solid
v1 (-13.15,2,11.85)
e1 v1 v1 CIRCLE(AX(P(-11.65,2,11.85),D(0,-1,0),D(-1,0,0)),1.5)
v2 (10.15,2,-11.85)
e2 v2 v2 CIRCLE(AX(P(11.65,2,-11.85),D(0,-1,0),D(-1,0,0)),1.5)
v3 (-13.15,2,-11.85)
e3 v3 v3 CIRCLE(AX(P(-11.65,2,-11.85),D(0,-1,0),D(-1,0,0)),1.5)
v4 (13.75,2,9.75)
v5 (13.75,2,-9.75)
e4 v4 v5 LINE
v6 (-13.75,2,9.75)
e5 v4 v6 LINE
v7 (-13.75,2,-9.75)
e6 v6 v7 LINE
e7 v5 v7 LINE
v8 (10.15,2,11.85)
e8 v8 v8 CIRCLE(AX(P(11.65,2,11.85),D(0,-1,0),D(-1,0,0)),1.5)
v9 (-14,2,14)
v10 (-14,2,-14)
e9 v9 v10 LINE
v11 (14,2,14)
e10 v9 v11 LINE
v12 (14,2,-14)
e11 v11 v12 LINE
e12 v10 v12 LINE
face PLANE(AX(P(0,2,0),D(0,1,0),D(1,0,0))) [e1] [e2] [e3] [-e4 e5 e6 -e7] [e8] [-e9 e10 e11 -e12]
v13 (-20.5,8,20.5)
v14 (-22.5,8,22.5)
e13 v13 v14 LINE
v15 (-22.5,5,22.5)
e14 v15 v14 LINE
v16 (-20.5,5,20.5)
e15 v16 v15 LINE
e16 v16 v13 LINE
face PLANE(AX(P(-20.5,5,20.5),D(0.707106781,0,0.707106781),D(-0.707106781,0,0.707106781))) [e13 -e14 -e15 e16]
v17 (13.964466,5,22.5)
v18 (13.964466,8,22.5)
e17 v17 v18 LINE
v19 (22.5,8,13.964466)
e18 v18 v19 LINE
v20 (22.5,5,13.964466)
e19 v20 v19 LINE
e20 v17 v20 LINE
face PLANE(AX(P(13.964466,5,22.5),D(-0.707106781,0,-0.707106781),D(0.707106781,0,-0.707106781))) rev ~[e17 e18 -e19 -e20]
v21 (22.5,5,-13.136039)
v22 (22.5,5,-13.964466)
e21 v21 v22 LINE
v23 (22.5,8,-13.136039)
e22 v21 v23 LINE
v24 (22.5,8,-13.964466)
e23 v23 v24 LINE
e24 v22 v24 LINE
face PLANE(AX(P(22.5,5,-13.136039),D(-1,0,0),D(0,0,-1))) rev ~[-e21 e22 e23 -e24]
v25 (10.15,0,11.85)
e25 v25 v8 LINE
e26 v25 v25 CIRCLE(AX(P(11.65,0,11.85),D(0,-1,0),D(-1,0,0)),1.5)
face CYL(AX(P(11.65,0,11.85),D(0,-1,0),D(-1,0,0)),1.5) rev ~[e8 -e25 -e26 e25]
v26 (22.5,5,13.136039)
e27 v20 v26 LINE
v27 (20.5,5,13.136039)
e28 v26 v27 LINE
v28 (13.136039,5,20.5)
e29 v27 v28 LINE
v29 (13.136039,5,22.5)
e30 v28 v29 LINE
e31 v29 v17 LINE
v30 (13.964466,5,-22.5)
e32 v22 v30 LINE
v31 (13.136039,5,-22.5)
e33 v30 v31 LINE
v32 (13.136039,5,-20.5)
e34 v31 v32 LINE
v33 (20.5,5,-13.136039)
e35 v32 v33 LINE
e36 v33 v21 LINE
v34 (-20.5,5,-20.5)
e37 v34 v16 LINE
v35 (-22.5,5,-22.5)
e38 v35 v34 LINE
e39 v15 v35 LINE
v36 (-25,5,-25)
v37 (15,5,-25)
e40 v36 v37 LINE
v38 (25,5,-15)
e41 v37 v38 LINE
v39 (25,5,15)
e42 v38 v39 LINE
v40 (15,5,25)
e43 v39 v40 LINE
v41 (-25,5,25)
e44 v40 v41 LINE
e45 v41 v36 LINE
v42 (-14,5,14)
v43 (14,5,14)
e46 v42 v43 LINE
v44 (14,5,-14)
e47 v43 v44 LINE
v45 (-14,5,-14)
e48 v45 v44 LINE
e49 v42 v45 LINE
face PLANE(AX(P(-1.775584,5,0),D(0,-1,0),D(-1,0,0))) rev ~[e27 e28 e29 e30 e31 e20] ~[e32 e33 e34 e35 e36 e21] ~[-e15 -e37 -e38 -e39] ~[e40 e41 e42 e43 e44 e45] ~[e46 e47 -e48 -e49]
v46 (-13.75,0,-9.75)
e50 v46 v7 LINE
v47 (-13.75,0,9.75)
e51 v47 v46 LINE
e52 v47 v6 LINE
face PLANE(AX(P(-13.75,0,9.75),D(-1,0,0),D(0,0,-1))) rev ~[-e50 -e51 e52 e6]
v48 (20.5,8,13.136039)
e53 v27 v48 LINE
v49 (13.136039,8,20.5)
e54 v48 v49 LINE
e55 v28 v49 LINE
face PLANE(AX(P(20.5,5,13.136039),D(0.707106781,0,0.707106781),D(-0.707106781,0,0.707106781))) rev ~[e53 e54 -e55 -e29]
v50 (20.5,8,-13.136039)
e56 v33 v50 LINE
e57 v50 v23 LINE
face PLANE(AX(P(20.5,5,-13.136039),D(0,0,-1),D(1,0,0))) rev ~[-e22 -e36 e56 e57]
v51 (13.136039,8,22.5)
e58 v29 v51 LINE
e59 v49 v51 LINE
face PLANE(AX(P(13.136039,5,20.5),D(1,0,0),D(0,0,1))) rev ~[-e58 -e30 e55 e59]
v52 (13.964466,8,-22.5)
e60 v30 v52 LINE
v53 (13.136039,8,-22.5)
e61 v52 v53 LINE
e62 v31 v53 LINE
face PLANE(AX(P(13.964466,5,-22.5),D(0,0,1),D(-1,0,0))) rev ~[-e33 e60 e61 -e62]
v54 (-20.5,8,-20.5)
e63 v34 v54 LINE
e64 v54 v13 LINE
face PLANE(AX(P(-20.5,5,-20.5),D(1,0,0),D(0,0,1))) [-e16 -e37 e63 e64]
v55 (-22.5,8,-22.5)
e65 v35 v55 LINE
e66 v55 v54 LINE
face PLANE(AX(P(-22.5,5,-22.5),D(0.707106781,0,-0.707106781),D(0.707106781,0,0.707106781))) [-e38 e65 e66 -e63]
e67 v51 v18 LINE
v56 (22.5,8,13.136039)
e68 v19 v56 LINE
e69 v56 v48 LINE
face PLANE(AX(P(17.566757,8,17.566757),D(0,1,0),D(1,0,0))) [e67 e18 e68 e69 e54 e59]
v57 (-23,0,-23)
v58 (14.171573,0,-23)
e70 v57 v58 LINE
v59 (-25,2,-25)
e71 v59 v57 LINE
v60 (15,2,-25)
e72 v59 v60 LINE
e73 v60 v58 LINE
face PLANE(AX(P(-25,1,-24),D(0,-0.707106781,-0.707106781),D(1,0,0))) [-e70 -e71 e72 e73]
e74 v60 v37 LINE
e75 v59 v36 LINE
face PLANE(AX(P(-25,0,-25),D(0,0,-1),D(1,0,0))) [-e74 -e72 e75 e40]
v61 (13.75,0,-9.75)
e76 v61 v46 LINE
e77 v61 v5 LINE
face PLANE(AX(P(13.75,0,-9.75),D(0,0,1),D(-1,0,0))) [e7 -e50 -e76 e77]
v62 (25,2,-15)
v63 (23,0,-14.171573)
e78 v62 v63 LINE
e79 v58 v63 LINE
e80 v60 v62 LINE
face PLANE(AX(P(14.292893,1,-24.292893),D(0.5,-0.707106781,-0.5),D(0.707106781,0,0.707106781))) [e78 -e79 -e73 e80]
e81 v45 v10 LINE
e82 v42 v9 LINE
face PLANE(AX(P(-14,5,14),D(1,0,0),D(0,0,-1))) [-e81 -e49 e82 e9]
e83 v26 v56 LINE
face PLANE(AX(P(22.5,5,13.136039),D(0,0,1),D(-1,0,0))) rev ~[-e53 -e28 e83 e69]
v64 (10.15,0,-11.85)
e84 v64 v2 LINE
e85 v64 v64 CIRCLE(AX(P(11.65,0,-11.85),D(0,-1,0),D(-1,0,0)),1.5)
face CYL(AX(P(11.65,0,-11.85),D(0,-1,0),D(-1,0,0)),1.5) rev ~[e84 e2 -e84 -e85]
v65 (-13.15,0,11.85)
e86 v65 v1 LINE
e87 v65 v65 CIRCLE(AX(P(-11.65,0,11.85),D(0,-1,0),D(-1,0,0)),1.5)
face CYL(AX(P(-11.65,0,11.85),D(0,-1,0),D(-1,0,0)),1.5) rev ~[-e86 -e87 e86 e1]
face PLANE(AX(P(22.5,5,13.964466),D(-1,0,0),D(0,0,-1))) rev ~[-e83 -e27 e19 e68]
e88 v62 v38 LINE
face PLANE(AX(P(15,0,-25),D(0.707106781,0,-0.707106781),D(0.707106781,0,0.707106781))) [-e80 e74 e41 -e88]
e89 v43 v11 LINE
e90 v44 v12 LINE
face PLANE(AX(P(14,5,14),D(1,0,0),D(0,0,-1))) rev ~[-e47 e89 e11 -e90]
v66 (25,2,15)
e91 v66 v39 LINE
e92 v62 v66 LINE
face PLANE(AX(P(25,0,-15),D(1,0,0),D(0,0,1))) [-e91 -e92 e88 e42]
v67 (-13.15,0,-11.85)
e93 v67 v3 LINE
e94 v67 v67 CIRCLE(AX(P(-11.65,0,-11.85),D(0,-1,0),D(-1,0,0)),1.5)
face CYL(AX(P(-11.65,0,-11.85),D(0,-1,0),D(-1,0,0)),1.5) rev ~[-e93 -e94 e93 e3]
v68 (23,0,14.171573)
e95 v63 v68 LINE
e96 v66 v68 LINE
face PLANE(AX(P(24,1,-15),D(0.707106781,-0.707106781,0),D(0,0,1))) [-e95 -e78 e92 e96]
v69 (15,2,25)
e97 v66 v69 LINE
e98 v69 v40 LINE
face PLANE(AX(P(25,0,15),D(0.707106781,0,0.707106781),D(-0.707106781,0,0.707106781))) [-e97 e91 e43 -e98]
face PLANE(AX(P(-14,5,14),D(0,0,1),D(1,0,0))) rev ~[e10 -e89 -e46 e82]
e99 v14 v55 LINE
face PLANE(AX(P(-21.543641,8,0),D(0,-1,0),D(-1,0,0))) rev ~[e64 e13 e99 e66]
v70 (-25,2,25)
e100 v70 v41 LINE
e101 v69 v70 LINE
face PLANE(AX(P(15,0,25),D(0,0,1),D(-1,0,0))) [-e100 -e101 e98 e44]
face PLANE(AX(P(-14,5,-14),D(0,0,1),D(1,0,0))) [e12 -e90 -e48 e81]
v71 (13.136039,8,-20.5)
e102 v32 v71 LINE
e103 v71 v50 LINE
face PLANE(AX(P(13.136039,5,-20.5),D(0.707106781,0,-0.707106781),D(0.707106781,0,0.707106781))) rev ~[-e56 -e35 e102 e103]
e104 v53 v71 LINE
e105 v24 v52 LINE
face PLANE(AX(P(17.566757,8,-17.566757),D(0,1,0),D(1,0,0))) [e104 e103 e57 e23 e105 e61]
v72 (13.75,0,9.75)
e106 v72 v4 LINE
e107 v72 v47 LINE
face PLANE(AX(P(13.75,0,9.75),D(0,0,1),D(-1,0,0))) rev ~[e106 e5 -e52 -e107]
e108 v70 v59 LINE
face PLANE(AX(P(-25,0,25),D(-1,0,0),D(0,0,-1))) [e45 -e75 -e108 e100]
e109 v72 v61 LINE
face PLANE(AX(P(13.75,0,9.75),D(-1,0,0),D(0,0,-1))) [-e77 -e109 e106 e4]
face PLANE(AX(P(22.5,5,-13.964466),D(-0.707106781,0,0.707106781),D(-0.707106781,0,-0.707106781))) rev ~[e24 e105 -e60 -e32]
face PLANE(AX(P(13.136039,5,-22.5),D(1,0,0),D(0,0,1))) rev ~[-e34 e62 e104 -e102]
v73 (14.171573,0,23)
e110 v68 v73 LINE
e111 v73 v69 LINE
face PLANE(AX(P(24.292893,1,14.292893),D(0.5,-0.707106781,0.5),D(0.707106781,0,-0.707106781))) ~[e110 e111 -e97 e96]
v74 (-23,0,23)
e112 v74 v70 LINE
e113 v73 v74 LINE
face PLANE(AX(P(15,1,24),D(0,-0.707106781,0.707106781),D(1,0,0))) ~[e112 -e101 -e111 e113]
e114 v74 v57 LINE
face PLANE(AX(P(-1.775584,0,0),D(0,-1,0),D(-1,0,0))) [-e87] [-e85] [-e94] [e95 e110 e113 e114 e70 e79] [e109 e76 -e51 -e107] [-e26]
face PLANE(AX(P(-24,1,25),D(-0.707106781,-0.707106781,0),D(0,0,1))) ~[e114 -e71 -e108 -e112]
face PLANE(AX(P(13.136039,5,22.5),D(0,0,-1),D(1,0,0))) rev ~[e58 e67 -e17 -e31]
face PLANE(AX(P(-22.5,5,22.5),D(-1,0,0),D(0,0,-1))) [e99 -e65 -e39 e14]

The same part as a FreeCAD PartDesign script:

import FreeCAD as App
import Part
import Sketcher
from FreeCAD import Vector
Q = App.Units.Quantity


def edges_at(feature, points):
    """Names of the edges that pass closest to the given points."""
    edges = feature.Shape.Edges
    near = lambda p: min(range(len(edges)), key=lambda i: edges[i].distToShape(Part.Vertex(*p))[0])
    return sorted({f"Edge{near(p) + 1}" for p in points})


def add_polygon(sketch, points):
    """Adds a closed chain of lines whose ends are joined by coincident constraints."""
    first, n = sketch.GeometryCount, len(points)
    for a, b in zip(points, points[1:] + points[:1]):
        sketch.addGeometry(Part.LineSegment(App.Vector(*a, 0), App.Vector(*b, 0)), False)
    for i in range(n):
        sketch.addConstraint(Sketcher.Constraint("Coincident", first + i, 2, first + (i + 1) % n, 1))

doc = App.newDocument("Part")
body = doc.addObject("PartDesign::Body", "Body")

# Sketch on XZ plane
sketch1 = body.newObject("Sketcher::SketchObject", "Sketch")
sketch1.AttachmentSupport = (doc.getObject("XZ_Plane"), [""])
sketch1.MapMode = "FlatFace"
add_polygon(sketch1, [(25, -15), (15, -25), (-25, -25), (-25, 25), (15, 25), (25, 15)])  # lines 0-5
sketch1.addConstraint([
    Sketcher.Constraint("Horizontal", 1),
    Sketcher.Constraint("Vertical", 2),
    Sketcher.Constraint("Horizontal", 3),
    Sketcher.Constraint("Vertical", 5),
    Sketcher.Constraint("Symmetric", 0, 2, 3, 2, -1),
    Sketcher.Constraint("Perpendicular", 0, 4),
    Sketcher.Constraint("Equal", 0, 4),
    Sketcher.Constraint("DistanceX", 1, 2, 1, 1, Q("40 mm")),
    Sketcher.Constraint("DistanceY", 2, 1, 2, 2, Q("50 mm")),
    Sketcher.Constraint("DistanceY", 5, 2, 5, 1, Q("30 mm")),
    Sketcher.Constraint("DistanceX", -1, 1, 0, 2, Q("15 mm")),
])
pad1 = body.newObject("PartDesign::Pad", "Pad")
pad1.Profile = sketch1
pad1.Length = 5
pad1.Reversed = True

# Sketch on XZ plane
sketch2 = body.newObject("Sketcher::SketchObject", "Sketch001")
sketch2.AttachmentSupport = (doc.getObject("XZ_Plane"), [""])
sketch2.MapMode = "FlatFace"
sketch2.AttachmentOffset = App.Placement(Vector(0, 0, -5), App.Rotation())
add_polygon(sketch2, [(-20.5, 20.5), (-20.5, -20.5), (-22.5, -22.5), (-22.5, 22.5)])  # lines 0-3
add_polygon(sketch2, [(13.964466, -22.5), (13.136039, -22.5), (13.136039, -20.5), (20.5, -13.136039), (22.5, -13.136039), (22.5, -13.964466)])  # lines 4-9
add_polygon(sketch2, [(13.136039, 20.5), (13.136039, 22.5), (13.964466, 22.5), (22.5, 13.964466), (22.5, 13.136039), (20.5, 13.136039)])  # lines 10-15
sketch2.addConstraint([
    Sketcher.Constraint("Vertical", 0),
    Sketcher.Constraint("Vertical", 2),
    Sketcher.Constraint("Horizontal", 4),
    Sketcher.Constraint("Vertical", 5),
    Sketcher.Constraint("Horizontal", 7),
    Sketcher.Constraint("Vertical", 8),
    Sketcher.Constraint("Vertical", 10),
    Sketcher.Constraint("Horizontal", 11),
    Sketcher.Constraint("Vertical", 13),
    Sketcher.Constraint("Horizontal", 14),
    Sketcher.Constraint("Symmetric", 4, 2, 10, 2, -1),
    Sketcher.Constraint("Symmetric", 8, 2, 12, 2, -1),
    Sketcher.Constraint("Symmetric", 6, 2, 14, 2, -1),
    Sketcher.Constraint("Perpendicular", 1, 3),
    Sketcher.Constraint("Perpendicular", 3, 6),
    Sketcher.Constraint("Parallel", 6, 9),
    Sketcher.Constraint("Perpendicular", 9, 12),
    Sketcher.Constraint("Parallel", 12, 15),
    Sketcher.Constraint("Horizontal", 1, 2, 4, 2),
    Sketcher.Constraint("Horizontal", 0, 2, 5, 2),
    Sketcher.Constraint("Horizontal", 2, 2, 10, 2),
    Sketcher.Constraint("Horizontal", 3, 2, 15, 2),
    Sketcher.Constraint("Equal", 14, 5),
    Sketcher.Constraint("DistanceX", 7, 1, 7, 2, Q("2 mm")),
    Sketcher.Constraint("DistanceY", 0, 2, 0, 1, Q("41 mm")),
    Sketcher.Constraint("DistanceX", 0, 2, 6, 2, Q("41 mm")),
    Sketcher.Constraint("DistanceX", 0, 2, -1, 1, Q("20.5 mm")),
    Sketcher.Constraint("DistanceX", 4, 2, 4, 1, Q("0.828427 mm")),
    Sketcher.Constraint("DistanceX", -1, 1, 4, 2, Q("13.136039 mm")),
])
pad2 = body.newObject("PartDesign::Pad", "Pad001")
pad2.Profile = sketch2
pad2.Length = 3
pad2.Reversed = True
doc.recompute()

chamfer = body.newObject("PartDesign::Chamfer", "Chamfer")
chamfer.Base = (pad2, edges_at(pad2, [
    (-5, 0, -25),
    (20, 0, -20),
    (25, 0, 0),
    (20, 0, 20),
    (-5, 0, 25),
    (-25, 0, 0),
]))
chamfer.Size = 2

# Sketch on XZ plane
sketch3 = body.newObject("Sketcher::SketchObject", "Sketch002")
sketch3.AttachmentSupport = (doc.getObject("XZ_Plane"), [""])
sketch3.MapMode = "FlatFace"
sketch3.addGeometry(Part.Circle(Vector(11.65, 11.85, 0), Vector(0, 0, 1), 1.5), False)  # 0
sketch3.addGeometry(Part.Circle(Vector(-11.65, 11.85, 0), Vector(0, 0, 1), 1.5), False)  # 1
sketch3.addGeometry(Part.Circle(Vector(-11.65, -11.85, 0), Vector(0, 0, 1), 1.5), False)  # 2
sketch3.addGeometry(Part.Circle(Vector(11.65, -11.85, 0), Vector(0, 0, 1), 1.5), False)  # 3
add_polygon(sketch3, [(13.75, -9.75), (13.75, 9.75), (-13.75, 9.75), (-13.75, -9.75)])  # lines 4-7
sketch3.addConstraint([
    Sketcher.Constraint("Vertical", 4),
    Sketcher.Constraint("Horizontal", 5),
    Sketcher.Constraint("Vertical", 6),
    Sketcher.Constraint("Horizontal", 7),
    Sketcher.Constraint("Equal", 0, 1),
    Sketcher.Constraint("Equal", 1, 2),
    Sketcher.Constraint("Equal", 2, 3),
    Sketcher.Constraint("Symmetric", 0, 3, 2, 3, -1, 1),
    Sketcher.Constraint("Symmetric", 1, 3, 3, 3, -1, 1),
    Sketcher.Constraint("Symmetric", 4, 2, 6, 2, -1, 1),
    Sketcher.Constraint("Symmetric", 0, 3, 1, 3, -2),
    Sketcher.Constraint("Diameter", 0, Q("3 mm")),
    Sketcher.Constraint("DistanceX", 5, 2, 5, 1, Q("27.5 mm")),
    Sketcher.Constraint("DistanceY", 4, 1, 4, 2, Q("19.5 mm")),
    Sketcher.Constraint("DistanceX", 1, 3, 0, 3, Q("23.3 mm")),
    Sketcher.Constraint("DistanceY", 2, 3, 1, 3, Q("23.7 mm")),
])
pocket1 = body.newObject("PartDesign::Pocket", "Pocket")
pocket1.Profile = sketch3
pocket1.Length = 8

# Sketch on XZ plane
sketch4 = body.newObject("Sketcher::SketchObject", "Sketch003")
sketch4.AttachmentSupport = (doc.getObject("XZ_Plane"), [""])
sketch4.MapMode = "FlatFace"
sketch4.AttachmentOffset = App.Placement(Vector(0, 0, -5), App.Rotation())
add_polygon(sketch4, [(-14, -14), (-14, 14), (14, 14), (14, -14)])  # lines 0-3
sketch4.addConstraint([
    Sketcher.Constraint("Vertical", 0),
    Sketcher.Constraint("Horizontal", 1),
    Sketcher.Constraint("Vertical", 2),
    Sketcher.Constraint("Horizontal", 3),
    Sketcher.Constraint("Symmetric", 0, 2, 2, 2, -1, 1),
    Sketcher.Constraint("Equal", 3, 0),
    Sketcher.Constraint("DistanceX", 1, 1, 1, 2, Q("28 mm")),
])
pocket2 = body.newObject("PartDesign::Pocket", "Pocket001")
pocket2.Profile = sketch4
pocket2.Length = 3
pocket2.Reversed = True

doc.recompute()
